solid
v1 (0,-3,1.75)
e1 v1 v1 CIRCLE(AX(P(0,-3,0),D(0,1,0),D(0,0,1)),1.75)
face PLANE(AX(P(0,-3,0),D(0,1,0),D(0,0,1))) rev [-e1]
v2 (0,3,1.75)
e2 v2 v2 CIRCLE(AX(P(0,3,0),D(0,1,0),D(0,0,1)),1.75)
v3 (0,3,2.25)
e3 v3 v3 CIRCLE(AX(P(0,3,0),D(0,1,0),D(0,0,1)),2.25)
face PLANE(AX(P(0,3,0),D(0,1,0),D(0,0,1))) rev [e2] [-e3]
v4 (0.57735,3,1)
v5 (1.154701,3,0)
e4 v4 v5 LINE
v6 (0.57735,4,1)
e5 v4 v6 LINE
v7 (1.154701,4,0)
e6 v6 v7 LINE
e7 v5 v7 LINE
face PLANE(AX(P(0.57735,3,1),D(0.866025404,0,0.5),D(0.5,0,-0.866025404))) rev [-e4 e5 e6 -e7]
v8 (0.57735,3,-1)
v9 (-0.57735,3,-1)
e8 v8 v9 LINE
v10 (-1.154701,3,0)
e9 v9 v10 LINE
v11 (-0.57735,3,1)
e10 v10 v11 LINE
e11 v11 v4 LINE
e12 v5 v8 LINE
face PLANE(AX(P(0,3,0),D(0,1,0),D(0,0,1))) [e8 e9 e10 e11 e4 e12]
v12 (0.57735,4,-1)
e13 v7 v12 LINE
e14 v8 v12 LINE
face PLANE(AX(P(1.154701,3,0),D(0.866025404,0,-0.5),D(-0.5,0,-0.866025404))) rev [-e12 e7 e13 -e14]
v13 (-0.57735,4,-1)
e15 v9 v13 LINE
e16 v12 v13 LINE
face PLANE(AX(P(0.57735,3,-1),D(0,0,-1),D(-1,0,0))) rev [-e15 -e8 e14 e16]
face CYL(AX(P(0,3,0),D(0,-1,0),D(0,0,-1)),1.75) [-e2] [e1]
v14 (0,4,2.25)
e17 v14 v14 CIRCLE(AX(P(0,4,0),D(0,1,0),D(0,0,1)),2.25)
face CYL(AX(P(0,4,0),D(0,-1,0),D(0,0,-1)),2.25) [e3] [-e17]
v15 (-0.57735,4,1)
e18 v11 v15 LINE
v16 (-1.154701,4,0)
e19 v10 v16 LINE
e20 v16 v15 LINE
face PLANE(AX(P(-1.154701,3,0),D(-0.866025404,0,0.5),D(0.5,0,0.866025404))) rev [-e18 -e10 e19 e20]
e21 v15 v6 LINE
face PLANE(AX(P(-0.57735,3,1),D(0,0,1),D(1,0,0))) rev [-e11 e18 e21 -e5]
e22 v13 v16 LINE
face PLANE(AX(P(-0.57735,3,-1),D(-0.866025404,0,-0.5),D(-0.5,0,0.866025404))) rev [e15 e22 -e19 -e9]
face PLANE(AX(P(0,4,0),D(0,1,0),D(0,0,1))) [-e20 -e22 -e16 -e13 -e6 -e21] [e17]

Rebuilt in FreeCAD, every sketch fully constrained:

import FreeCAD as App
import Part
import Sketcher

V = App.Vector
Q = App.Units.Quantity

doc = App.newDocument("Part")
body = doc.addObject("PartDesign::Body", "Body")

sketch1 = body.newObject("Sketcher::SketchObject", "Sketch")
sketch1.AttachmentSupport = (doc.getObject("XZ_Plane"), [""])
sketch1.MapMode = "FlatFace"
sketch1.addGeometry(Part.Circle(V(0, 0, 0), V(0, 0, 1), 1.8), False)
sketch1.addConstraint([
    Sketcher.Constraint("Coincident", 0, 3, -1, 1),
    Sketcher.Constraint("Diameter", 0, 3.5),
])
pad1 = body.newObject("PartDesign::Pad", "Pad")
pad1.Profile = sketch1
pad1.Length = 6
pad1.Midplane = True

sketch2 = body.newObject("Sketcher::SketchObject", "Sketch001")
sketch2.AttachmentSupport = (doc.getObject("XZ_Plane"), [""])
sketch2.MapMode = "FlatFace"
sketch2.AttachmentOffset = App.Placement(V(0, 0, -3), App.Rotation())
sketch2.addGeometry(Part.Circle(V(0, 0, 0), V(0, 0, 1), 2.2), False)
sketch2.addConstraint([
    Sketcher.Constraint("Coincident", 0, 3, -1, 1),
    Sketcher.Constraint("Diameter", 0, 4.5),
])
pad2 = body.newObject("PartDesign::Pad", "Pad001")
pad2.Profile = sketch2
pad2.Length = 1
pad2.Reversed = True

sketch3 = body.newObject("Sketcher::SketchObject", "Sketch002")
sketch3.AttachmentSupport = (doc.getObject("XZ_Plane"), [""])
sketch3.MapMode = "FlatFace"
sketch3.AttachmentOffset = App.Placement(V(0, 0, -4), App.Rotation())
sketch3.addGeometry([
    Part.LineSegment(V(1.2, 0, 0), V(0.6, -1, 0)),
    Part.LineSegment(V(0.6, -1, 0), V(-0.6, -1, 0)),
    Part.LineSegment(V(-0.6, -1, 0), V(-1.2, 0, 0)),
    Part.LineSegment(V(-1.2, 0, 0), V(-0.6, 1, 0)),
    Part.LineSegment(V(-0.6, 1, 0), V(0.6, 1, 0)),
    Part.LineSegment(V(0.6, 1, 0), V(1.2, 0, 0)),
], False)
sketch3.addConstraint([
    Sketcher.Constraint("Coincident", 0, 2, 1, 1),
    Sketcher.Constraint("Coincident", 1, 2, 2, 1),
    Sketcher.Constraint("Coincident", 2, 2, 3, 1),
    Sketcher.Constraint("Coincident", 3, 2, 4, 1),
    Sketcher.Constraint("Coincident", 4, 2, 5, 1),
    Sketcher.Constraint("Coincident", 5, 2, 0, 1),
    Sketcher.Constraint("Horizontal", 1),
    Sketcher.Constraint("Horizontal", 4),
    Sketcher.Constraint("Symmetric", 0, 2, 3, 2, -1, 1),
    Sketcher.Constraint("Symmetric", 2, 2, 5, 2, -1, 1),
    Sketcher.Constraint("PointOnObject", 2, 2, -1),
    Sketcher.Constraint("Parallel", 2, 5),
    Sketcher.Constraint("Vertical", 1, 2, 3, 2),
    Sketcher.Constraint("Angle", 0, Q("-120 deg")),
    Sketcher.Constraint("DistanceY", 0, 2, -1, 1, 1.0),
    Sketcher.Constraint("DistanceX", 1, 2, 1, 1, 1.154701),
])
pocket1 = body.newObject("PartDesign::Pocket", "Pocket")
pocket1.Profile = sketch3
pocket1.Length = 1
pocket1.Reversed = True

doc.recompute()
